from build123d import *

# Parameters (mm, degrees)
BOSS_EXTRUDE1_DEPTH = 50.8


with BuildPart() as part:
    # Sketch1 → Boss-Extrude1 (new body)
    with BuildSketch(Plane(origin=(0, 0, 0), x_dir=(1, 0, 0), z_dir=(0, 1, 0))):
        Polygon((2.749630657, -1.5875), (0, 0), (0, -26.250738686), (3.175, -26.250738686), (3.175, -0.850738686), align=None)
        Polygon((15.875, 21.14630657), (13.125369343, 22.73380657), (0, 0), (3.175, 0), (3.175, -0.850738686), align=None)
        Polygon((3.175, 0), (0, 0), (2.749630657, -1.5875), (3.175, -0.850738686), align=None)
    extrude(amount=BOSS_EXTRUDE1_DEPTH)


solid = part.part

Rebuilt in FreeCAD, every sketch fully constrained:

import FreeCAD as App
import Part
import Sketcher
Q = App.Units.Quantity


def add_polygon(sketch, points):
    """Adds a closed chain of lines whose ends are joined by coincident constraints."""
    first, n = sketch.GeometryCount, len(points)
    for a, b in zip(points, points[1:] + points[:1]):
        sketch.addGeometry(Part.LineSegment(App.Vector(*a, 0), App.Vector(*b, 0)), False)
    for i in range(n):
        sketch.addConstraint(Sketcher.Constraint("Coincident", first + i, 2, first + (i + 1) % n, 1))

doc = App.newDocument("Part")
params = doc.addObject("Spreadsheet::Sheet", "Params")
for row, (alias, value) in enumerate([
    ("sketch1_height", "1 in"),
    ("sketch1_length", "1 in"),
    ("sketch1_width", "0.125 in"),
    ("sketch1_length2", "0.125 in"),
    ("pad1_length", "2 in"),
], start=1):
    params.set(f"A{row}", alias)
    params.set(f"B{row}", "=" + value)
    params.setAlias(f"B{row}", alias)

body = doc.addObject("PartDesign::Body", "Body")

# Sketch on XZ plane
sketch1 = body.newObject("Sketcher::SketchObject", "Sketch")
sketch1.AttachmentSupport = (doc.getObject("XZ_Plane"), [""])
sketch1.MapMode = "FlatFace"
add_polygon(sketch1, [(0, 0), (0, 26.3), (3.2, 26.3), (3.2, 0.9), (15.9, -21.1), (13.1, -22.7)])  # lines 0-5
sketch1.addConstraint(Sketcher.Constraint("Vertical", 0))
sketch1.addConstraint(Sketcher.Constraint("Horizontal", 1))
sketch1.addConstraint(Sketcher.Constraint("Vertical", 2))
sketch1.addConstraint(Sketcher.Constraint("Coincident", 5, 2, -1, 1))
sketch1.addConstraint(Sketcher.Constraint("Perpendicular", 3, 4))
sketch1.addConstraint(Sketcher.Constraint("Perpendicular", 4, 5))
sketch1.addConstraint(Sketcher.Constraint("DistanceY", 2, 2, 2, 1, Q("1 in")))
sketch1.addConstraint(Sketcher.Constraint("Distance", 3, Q("1 in")))
sketch1.addConstraint(Sketcher.Constraint("Angle", 3, Q("-60 deg")))
sketch1.addConstraint(Sketcher.Constraint("DistanceX", 1, 1, 1, 2, Q("0.125 in")))
sketch1.addConstraint(Sketcher.Constraint("Distance", 4, Q("0.125 in")))
sketch1.setExpression("Constraints[12]", "Params.sketch1_height")
sketch1.setExpression("Constraints[13]", "Params.sketch1_length")
sketch1.setExpression("Constraints[15]", "Params.sketch1_width")
sketch1.setExpression("Constraints[16]", "Params.sketch1_length2")
pad1 = body.newObject("PartDesign::Pad", "Pad")
pad1.Profile = sketch1
pad1.setExpression("Length", "Params.pad1_length")
pad1.Reversed = True

doc.recompute()
